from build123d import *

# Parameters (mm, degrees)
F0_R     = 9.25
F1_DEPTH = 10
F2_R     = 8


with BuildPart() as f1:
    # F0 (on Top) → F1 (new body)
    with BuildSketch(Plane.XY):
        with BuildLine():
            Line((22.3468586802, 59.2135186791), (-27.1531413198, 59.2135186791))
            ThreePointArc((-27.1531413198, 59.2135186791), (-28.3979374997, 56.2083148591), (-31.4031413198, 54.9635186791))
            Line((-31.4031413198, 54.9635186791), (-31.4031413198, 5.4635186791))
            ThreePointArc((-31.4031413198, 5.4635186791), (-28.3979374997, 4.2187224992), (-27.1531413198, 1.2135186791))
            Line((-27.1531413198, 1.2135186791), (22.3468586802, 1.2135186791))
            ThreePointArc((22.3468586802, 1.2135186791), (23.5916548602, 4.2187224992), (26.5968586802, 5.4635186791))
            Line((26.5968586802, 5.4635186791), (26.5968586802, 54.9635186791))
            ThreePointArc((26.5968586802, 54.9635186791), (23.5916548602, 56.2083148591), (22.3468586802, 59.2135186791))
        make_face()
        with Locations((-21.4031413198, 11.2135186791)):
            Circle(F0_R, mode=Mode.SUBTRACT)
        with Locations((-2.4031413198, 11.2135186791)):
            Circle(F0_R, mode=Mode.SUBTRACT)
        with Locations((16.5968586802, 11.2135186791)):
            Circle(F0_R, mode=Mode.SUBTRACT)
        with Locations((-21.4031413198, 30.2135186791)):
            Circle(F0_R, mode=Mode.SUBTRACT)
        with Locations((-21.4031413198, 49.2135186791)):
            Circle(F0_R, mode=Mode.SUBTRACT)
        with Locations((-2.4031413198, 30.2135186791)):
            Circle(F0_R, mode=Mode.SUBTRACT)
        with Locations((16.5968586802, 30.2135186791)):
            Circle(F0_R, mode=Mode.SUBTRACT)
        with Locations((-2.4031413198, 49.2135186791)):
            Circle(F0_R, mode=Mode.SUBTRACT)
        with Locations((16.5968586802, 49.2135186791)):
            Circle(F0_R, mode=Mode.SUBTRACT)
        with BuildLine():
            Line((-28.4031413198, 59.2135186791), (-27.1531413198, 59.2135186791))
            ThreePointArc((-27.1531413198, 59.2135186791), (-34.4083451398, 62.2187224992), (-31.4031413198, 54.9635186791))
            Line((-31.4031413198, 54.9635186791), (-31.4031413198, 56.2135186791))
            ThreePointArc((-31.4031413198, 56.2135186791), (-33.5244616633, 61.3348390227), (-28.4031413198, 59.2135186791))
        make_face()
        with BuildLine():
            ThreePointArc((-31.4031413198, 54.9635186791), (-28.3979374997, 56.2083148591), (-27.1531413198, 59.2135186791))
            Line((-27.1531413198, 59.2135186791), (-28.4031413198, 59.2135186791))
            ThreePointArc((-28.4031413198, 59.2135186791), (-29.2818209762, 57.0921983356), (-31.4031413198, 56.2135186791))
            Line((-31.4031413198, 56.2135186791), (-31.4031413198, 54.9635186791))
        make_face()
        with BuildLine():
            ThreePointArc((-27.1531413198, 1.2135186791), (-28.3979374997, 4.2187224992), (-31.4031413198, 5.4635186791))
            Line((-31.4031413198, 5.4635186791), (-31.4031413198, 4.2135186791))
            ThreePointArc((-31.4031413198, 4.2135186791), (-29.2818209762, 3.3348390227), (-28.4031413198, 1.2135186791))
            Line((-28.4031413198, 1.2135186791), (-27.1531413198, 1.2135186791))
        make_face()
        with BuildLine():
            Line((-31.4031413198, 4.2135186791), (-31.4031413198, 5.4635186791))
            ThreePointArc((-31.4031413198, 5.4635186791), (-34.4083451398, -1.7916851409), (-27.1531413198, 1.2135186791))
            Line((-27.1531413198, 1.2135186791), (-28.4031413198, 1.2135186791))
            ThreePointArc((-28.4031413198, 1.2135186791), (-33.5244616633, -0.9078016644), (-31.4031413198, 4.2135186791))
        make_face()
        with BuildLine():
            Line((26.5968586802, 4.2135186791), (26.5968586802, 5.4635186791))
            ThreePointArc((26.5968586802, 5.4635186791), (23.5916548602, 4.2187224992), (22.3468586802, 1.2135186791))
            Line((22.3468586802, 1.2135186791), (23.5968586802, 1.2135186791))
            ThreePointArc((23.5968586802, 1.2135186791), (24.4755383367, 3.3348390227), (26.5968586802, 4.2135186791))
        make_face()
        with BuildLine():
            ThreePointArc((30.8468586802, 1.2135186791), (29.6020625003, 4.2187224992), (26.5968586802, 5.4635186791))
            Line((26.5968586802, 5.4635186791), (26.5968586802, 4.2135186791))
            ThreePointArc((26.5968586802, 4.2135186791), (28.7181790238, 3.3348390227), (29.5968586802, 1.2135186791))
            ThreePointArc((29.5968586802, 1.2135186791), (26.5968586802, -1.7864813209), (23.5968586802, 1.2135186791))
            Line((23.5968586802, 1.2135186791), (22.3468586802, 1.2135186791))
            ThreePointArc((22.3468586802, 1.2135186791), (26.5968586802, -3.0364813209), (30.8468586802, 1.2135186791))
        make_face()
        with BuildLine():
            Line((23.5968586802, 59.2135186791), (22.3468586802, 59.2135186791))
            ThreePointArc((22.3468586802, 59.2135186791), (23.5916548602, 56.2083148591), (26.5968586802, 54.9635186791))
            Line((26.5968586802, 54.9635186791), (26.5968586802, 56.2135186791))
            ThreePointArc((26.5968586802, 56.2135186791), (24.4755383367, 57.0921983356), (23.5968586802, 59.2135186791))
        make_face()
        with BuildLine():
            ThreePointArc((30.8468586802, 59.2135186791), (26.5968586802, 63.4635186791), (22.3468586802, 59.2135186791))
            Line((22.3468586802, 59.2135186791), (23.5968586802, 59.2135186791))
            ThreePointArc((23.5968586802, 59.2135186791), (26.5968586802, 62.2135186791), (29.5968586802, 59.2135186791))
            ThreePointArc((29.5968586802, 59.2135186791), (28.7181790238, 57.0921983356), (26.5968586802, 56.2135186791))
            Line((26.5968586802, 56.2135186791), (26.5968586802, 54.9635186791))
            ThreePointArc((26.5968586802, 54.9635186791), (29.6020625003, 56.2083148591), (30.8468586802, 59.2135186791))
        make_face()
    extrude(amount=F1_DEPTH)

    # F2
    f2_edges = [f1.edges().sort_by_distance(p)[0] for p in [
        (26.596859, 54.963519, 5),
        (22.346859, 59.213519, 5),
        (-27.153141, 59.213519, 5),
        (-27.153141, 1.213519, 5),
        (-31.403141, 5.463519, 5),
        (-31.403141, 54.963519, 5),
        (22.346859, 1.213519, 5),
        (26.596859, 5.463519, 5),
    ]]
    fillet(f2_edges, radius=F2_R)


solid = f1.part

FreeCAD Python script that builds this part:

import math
import FreeCAD as App
import Part
import Sketcher

V = App.Vector


def edges_at(feature, points):
    """Names of the edges that pass closest to the given points."""
    edges = feature.Shape.Edges
    near = lambda p: min(range(len(edges)), key=lambda i: edges[i].distToShape(Part.Vertex(*p))[0])
    return sorted({f"Edge{near(p) + 1}" for p in points})

doc = App.newDocument("Part")
body = doc.addObject("PartDesign::Body", "Body")

# Sketch on XY plane
sketch1 = body.newObject("Sketcher::SketchObject", "Sketch")
sketch1.AttachmentSupport = (doc.getObject("XY_Plane"), [""])
sketch1.MapMode = "FlatFace"
sketch1.addGeometry([
    Part.ArcOfCircle(Part.Circle(V(-31.4, 59.2, 0), V(0, 0, 1), 4.2), math.radians(0), math.radians(270)),  # 0
    Part.LineSegment(V(-31.4, 55, 0), V(-31.4, 5.5, 0)),  # 1
    Part.ArcOfCircle(Part.Circle(V(-31.4, 1.2, 0), V(0, 0, 1), 4.2), math.radians(90), math.radians(360)),  # 2
    Part.LineSegment(V(-27.2, 1.2, 0), V(22.3, 1.2, 0)),  # 3
    Part.ArcOfCircle(Part.Circle(V(26.6, 1.2, 0), V(0, 0, 1), 4.2), math.radians(180), math.radians(360)),  # 4
    Part.ArcOfCircle(Part.Circle(V(26.6, 1.2, 0), V(0, 0, 1), 4.2), math.radians(0), math.radians(90)),  # 5
    Part.LineSegment(V(26.6, 5.5, 0), V(26.6, 55, 0)),  # 6
    Part.ArcOfCircle(Part.Circle(V(26.6, 59.2, 0), V(0, 0, 1), 4.2), math.radians(-90), math.radians(0)),  # 7
    Part.ArcOfCircle(Part.Circle(V(26.6, 59.2, 0), V(0, 0, 1), 4.2), math.radians(0), math.radians(180)),  # 8
    Part.LineSegment(V(22.3, 59.2, 0), V(-27.2, 59.2, 0)),  # 9
    Part.ArcOfCircle(Part.Circle(V(26.6, 59.2, 0), V(0, 0, 1), 3), math.radians(180), math.radians(270)),  # 10
    Part.ArcOfCircle(Part.Circle(V(26.6, 59.2, 0), V(0, 0, 1), 3), math.radians(0), math.radians(180)),  # 11
    Part.ArcOfCircle(Part.Circle(V(26.6, 59.2, 0), V(0, 0, 1), 3), math.radians(-90), math.radians(0)),  # 12
    Part.ArcOfCircle(Part.Circle(V(26.6, 1.2, 0), V(0, 0, 1), 3), math.radians(90), math.radians(180)),  # 13
    Part.ArcOfCircle(Part.Circle(V(26.6, 1.2, 0), V(0, 0, 1), 3), math.radians(0), math.radians(90)),  # 14
    Part.ArcOfCircle(Part.Circle(V(26.6, 1.2, 0), V(0, 0, 1), 3), math.radians(180), math.radians(360)),  # 15
    Part.ArcOfCircle(Part.Circle(V(-31.4, 1.2, 0), V(0, 0, 1), 3), math.radians(0), math.radians(90)),  # 16
    Part.ArcOfCircle(Part.Circle(V(-31.4, 1.2, 0), V(0, 0, 1), 3), math.radians(90), math.radians(360)),  # 17
    Part.Circle(V(-21.4, 11.2, 0), V(0, 0, 1), 9.2),  # 18
    Part.Circle(V(-2.4, 11.2, 0), V(0, 0, 1), 9.2),  # 19
    Part.Circle(V(16.6, 11.2, 0), V(0, 0, 1), 9.2),  # 20
    Part.Circle(V(-21.4, 30.2, 0), V(0, 0, 1), 9.2),  # 21
    Part.Circle(V(-21.4, 49.2, 0), V(0, 0, 1), 9.2),  # 22
    Part.Circle(V(-2.4, 30.2, 0), V(0, 0, 1), 9.2),  # 23
    Part.Circle(V(16.6, 30.2, 0), V(0, 0, 1), 9.2),  # 24
    Part.Circle(V(-2.4, 49.2, 0), V(0, 0, 1), 9.2),  # 25
    Part.Circle(V(16.6, 49.2, 0), V(0, 0, 1), 9.2),  # 26
    Part.ArcOfCircle(Part.Circle(V(-31.4, 59.2, 0), V(0, 0, 1), 3), math.radians(-90), math.radians(0)),  # 27
    Part.ArcOfCircle(Part.Circle(V(-31.4, 59.2, 0), V(0, 0, 1), 3), math.radians(0), math.radians(270)),  # 28
], False)
sketch1.addConstraint([
    Sketcher.Constraint("Coincident", 0, 2, 1, 1),
    Sketcher.Constraint("Coincident", 1, 2, 2, 1),
    Sketcher.Constraint("Coincident", 2, 2, 3, 1),
    Sketcher.Constraint("Coincident", 3, 2, 4, 1),
    Sketcher.Constraint("Tangent", 4, 2, 5, 1),
    Sketcher.Constraint("Coincident", 5, 2, 6, 1),
    Sketcher.Constraint("Coincident", 6, 2, 7, 1),
    Sketcher.Constraint("Tangent", 7, 2, 8, 1),
    Sketcher.Constraint("Coincident", 8, 2, 9, 1),
    Sketcher.Constraint("Coincident", 9, 2, 0, 1),
    Sketcher.Constraint("Tangent", 10, 1, 11, 2),
    Sketcher.Constraint("Tangent", 11, 1, 12, 2),
    Sketcher.Constraint("Tangent", 12, 1, 10, 2),
    Sketcher.Constraint("Tangent", 13, 1, 14, 2),
    Sketcher.Constraint("Tangent", 14, 1, 15, 2),
    Sketcher.Constraint("Tangent", 15, 1, 13, 2),
    Sketcher.Constraint("Tangent", 16, 1, 17, 2),
    Sketcher.Constraint("Coincident", 17, 1, 16, 2),
    Sketcher.Constraint("Tangent", 27, 1, 28, 2),
    Sketcher.Constraint("Coincident", 28, 1, 27, 2),
    Sketcher.Constraint("Vertical", 1),
    Sketcher.Constraint("Horizontal", 3),
    Sketcher.Constraint("Vertical", 6),
    Sketcher.Constraint("Horizontal", 9),
    Sketcher.Constraint("Coincident", 10, 3, 7, 3),
    Sketcher.Constraint("Coincident", 13, 3, 4, 3),
    Sketcher.Constraint("Coincident", 16, 3, 2, 3),
    Sketcher.Constraint("Coincident", 27, 3, 0, 3),
    Sketcher.Constraint("Equal", 0, 2),
    Sketcher.Constraint("Equal", 2, 4),
    Sketcher.Constraint("Equal", 4, 5),
    Sketcher.Constraint("Equal", 5, 7),
    Sketcher.Constraint("Equal", 7, 8),
    Sketcher.Constraint("Equal", 12, 13),
    Sketcher.Constraint("Equal", 15, 16),
    Sketcher.Constraint("Equal", 18, 19),
    Sketcher.Constraint("Equal", 19, 20),
    Sketcher.Constraint("Equal", 20, 21),
    Sketcher.Constraint("Equal", 21, 22),
    Sketcher.Constraint("Equal", 22, 23),
    Sketcher.Constraint("Equal", 23, 24),
    Sketcher.Constraint("Equal", 24, 25),
    Sketcher.Constraint("Equal", 25, 26),
    Sketcher.Constraint("Equal", 17, 27),
    Sketcher.Constraint("Horizontal", 2, 3, 4, 3),
    Sketcher.Constraint("Horizontal", 0, 3, 7, 3),
    Sketcher.Constraint("Horizontal", 18, 3, 19, 3),
    Sketcher.Constraint("Horizontal", 19, 3, 20, 3),
    Sketcher.Constraint("Horizontal", 21, 3, 23, 3),
    Sketcher.Constraint("Horizontal", 23, 3, 24, 3),
    Sketcher.Constraint("Horizontal", 22, 3, 25, 3),
    Sketcher.Constraint("Horizontal", 25, 3, 26, 3),
    Sketcher.Constraint("Horizontal", 17, 3, 2, 2),
    Sketcher.Constraint("Horizontal", 3, 2, 4, 2),
    Sketcher.Constraint("Horizontal", 28, 3, 7, 2),
    Sketcher.Constraint("Horizontal", 7, 2, 8, 2),
    Sketcher.Constraint("Horizontal", 9, 2, 10, 1),
    Sketcher.Constraint("Horizontal", 10, 1, 11, 1),
    Sketcher.Constraint("Horizontal", 4, 2, 14, 1),
    Sketcher.Constraint("Horizontal", 14, 1, 15, 1),
    Sketcher.Constraint("Horizontal", 15, 1, 16, 1),
    Sketcher.Constraint("Horizontal", 11, 1, 28, 1),
    Sketcher.Constraint("Vertical", 0, 3, 2, 3),
    Sketcher.Constraint("Vertical", 5, 3, 7, 3),
    Sketcher.Constraint("Vertical", 18, 3, 21, 3),
    Sketcher.Constraint("Vertical", 21, 3, 22, 3),
    Sketcher.Constraint("Vertical", 19, 3, 23, 3),
    Sketcher.Constraint("Vertical", 20, 3, 24, 3),
    Sketcher.Constraint("Vertical", 23, 3, 25, 3),
    Sketcher.Constraint("Vertical", 24, 3, 26, 3),
    Sketcher.Constraint("Vertical", 28, 3, 0, 2),
    Sketcher.Constraint("Vertical", 15, 3, 5, 2),
    Sketcher.Constraint("Vertical", 6, 2, 12, 1),
    Sketcher.Constraint("Vertical", 12, 1, 13, 1),
    Sketcher.Constraint("Vertical", 1, 2, 17, 1),
    Sketcher.Constraint("Vertical", 17, 1, 27, 1),
    Sketcher.Constraint("Equal", 9, 1),
    Sketcher.Constraint("Radius", 10, 3.0),
    Sketcher.Constraint("Diameter", 18, 18.5),
    Sketcher.Constraint("Radius", 0, 4.25),
    Sketcher.Constraint("DistanceX", 3, 1, 3, 2, 49.5),
    Sketcher.Constraint("DistanceX", 2, 3, 18, 3, 10.0),
    Sketcher.Constraint("DistanceY", 2, 3, 18, 3, 10.0),
    Sketcher.Constraint("DistanceX", 18, 3, 19, 3, 19.0),
    Sketcher.Constraint("DistanceX", 20, 3, 4, 3, 10.0),
    Sketcher.Constraint("DistanceY", 18, 3, 21, 3, 19.0),
    Sketcher.Constraint("DistanceY", 22, 3, 0, 3, 10.0),
    Sketcher.Constraint("DistanceX", 0, 3, -1, 1, 31.403141),
    Sketcher.Constraint("DistanceY", -1, 1, 0, 3, 59.213519),
])
pad1 = body.newObject("PartDesign::Pad", "Pad")
pad1.Profile = sketch1
pad1.Length = 10
doc.recompute()

fillet = body.newObject("PartDesign::Fillet", "Fillet")
fillet.Base = (pad1, edges_at(pad1, [
    (26.597, 54.964, 5),
    (22.347, 59.214, 5),
    (-27.153, 59.214, 5),
    (-27.153, 1.214, 5),
    (-31.403, 5.464, 5),
    (-31.403, 54.964, 5),
    (22.347, 1.214, 5),
    (26.597, 5.464, 5),
]))
fillet.Radius = 8

doc.recompute()
